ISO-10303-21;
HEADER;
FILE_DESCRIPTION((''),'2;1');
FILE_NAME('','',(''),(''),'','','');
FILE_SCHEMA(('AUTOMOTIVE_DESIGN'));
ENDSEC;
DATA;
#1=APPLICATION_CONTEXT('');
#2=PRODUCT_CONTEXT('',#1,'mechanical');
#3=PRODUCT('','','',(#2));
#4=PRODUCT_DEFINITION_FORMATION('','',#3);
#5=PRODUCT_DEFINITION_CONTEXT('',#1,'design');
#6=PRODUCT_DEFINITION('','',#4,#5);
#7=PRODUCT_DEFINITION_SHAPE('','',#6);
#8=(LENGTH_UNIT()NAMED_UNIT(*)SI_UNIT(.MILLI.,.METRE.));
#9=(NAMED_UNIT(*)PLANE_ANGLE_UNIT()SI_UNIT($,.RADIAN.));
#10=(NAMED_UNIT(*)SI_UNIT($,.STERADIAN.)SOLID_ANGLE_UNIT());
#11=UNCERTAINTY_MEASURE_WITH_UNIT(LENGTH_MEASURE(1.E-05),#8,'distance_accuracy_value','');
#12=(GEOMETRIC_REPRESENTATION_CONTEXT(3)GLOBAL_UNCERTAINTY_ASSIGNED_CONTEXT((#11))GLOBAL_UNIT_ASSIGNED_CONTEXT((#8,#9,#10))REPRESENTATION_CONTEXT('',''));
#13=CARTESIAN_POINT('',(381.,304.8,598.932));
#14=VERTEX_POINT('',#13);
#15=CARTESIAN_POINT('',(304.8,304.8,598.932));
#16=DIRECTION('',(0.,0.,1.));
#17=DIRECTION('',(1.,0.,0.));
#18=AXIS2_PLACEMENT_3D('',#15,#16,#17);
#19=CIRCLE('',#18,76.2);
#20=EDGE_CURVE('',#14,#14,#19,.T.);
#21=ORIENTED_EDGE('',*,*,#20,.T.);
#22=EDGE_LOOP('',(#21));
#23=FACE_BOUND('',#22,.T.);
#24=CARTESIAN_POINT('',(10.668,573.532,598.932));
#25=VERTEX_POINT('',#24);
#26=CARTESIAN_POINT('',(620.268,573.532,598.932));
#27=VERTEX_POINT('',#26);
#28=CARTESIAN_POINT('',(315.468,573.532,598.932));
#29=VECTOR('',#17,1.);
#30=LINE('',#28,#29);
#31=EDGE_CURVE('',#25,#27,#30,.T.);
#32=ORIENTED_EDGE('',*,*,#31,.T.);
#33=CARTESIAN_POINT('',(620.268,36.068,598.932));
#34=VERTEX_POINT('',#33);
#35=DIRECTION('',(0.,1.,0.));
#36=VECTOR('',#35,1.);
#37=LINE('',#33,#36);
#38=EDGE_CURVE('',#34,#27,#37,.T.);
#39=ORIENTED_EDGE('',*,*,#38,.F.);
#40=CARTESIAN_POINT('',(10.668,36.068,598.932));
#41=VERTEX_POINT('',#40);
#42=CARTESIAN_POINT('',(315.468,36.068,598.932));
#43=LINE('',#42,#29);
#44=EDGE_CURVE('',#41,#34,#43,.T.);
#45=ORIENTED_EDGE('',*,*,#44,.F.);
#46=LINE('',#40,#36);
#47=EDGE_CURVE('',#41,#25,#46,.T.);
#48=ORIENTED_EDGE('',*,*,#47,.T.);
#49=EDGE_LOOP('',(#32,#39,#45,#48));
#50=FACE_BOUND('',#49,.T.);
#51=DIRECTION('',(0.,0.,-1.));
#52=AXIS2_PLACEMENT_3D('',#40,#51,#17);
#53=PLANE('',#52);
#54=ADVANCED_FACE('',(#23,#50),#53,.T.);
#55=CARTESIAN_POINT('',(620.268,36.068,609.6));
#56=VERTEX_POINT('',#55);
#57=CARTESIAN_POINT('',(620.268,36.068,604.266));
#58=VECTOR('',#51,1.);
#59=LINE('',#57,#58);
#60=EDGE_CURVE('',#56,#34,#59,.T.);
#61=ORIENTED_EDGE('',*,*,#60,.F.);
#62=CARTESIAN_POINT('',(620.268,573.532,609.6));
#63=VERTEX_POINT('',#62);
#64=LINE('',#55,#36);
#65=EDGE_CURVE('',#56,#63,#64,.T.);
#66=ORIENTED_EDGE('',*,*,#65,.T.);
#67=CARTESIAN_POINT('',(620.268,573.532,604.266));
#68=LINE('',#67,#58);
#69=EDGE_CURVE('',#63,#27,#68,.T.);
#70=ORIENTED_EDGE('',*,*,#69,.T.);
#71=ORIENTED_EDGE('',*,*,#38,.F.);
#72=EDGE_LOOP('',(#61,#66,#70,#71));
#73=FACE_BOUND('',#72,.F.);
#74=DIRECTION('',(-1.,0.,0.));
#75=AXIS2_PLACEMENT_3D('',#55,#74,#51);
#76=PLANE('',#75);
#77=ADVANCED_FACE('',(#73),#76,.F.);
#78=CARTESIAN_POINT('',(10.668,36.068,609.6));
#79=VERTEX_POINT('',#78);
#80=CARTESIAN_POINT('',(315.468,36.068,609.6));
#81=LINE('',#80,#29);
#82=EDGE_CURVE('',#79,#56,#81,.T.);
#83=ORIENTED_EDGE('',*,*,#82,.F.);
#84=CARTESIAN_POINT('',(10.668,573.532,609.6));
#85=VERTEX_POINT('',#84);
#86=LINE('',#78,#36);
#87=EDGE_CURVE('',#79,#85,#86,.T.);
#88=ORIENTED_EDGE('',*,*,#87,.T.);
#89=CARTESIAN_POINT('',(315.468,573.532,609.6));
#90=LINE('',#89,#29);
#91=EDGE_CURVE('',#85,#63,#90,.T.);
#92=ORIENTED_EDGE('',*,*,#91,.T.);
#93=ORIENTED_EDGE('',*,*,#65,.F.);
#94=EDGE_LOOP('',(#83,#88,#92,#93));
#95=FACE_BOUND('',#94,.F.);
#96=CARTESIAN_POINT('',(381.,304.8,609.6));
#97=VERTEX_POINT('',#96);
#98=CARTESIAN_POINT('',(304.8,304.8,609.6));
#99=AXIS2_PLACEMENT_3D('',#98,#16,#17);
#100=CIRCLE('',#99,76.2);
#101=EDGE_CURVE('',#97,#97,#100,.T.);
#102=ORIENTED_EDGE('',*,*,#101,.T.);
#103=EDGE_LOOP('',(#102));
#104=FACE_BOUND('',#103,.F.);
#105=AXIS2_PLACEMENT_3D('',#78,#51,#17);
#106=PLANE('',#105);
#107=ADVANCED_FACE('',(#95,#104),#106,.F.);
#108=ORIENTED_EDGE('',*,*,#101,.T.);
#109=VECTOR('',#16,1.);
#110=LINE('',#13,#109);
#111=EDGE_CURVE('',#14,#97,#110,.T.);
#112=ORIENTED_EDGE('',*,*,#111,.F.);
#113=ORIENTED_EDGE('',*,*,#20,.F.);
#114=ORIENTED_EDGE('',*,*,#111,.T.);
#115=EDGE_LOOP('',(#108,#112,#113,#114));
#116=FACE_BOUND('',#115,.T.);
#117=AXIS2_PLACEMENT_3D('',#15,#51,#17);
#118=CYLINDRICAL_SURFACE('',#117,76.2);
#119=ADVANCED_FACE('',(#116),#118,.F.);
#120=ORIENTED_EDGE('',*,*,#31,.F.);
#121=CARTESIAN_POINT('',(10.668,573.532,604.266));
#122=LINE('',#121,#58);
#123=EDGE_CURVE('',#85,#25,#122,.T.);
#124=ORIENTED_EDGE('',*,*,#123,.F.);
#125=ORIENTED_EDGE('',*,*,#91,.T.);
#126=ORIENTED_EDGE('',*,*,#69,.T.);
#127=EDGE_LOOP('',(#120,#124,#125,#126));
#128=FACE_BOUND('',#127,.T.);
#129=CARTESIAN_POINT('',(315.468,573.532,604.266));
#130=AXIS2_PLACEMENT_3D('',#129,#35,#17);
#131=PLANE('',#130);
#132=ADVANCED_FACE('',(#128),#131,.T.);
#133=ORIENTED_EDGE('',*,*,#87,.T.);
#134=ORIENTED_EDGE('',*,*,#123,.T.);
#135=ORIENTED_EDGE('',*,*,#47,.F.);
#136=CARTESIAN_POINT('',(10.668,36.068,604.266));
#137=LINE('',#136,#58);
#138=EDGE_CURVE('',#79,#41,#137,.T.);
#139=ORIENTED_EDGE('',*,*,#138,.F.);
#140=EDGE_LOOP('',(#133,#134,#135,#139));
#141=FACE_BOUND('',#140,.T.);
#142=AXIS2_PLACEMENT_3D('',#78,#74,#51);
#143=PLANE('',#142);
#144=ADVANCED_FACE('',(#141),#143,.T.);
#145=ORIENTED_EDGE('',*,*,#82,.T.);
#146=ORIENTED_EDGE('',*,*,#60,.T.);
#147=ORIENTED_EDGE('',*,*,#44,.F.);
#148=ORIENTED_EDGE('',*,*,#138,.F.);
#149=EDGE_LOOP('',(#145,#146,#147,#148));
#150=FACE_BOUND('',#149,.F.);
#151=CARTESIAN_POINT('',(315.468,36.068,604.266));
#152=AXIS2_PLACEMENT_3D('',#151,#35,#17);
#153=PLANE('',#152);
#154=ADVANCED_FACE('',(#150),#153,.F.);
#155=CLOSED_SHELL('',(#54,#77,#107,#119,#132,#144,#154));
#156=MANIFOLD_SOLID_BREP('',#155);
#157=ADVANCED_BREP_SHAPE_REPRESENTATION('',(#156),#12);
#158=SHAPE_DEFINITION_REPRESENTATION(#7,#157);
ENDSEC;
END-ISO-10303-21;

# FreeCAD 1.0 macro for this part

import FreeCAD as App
import Part
import Sketcher
from FreeCAD import Vector
Q = App.Units.Quantity


def add_polygon(sketch, points):
    """Adds a closed chain of lines whose ends are joined by coincident constraints."""
    first, n = sketch.GeometryCount, len(points)
    for a, b in zip(points, points[1:] + points[:1]):
        sketch.addGeometry(Part.LineSegment(App.Vector(*a, 0), App.Vector(*b, 0)), False)
    for i in range(n):
        sketch.addConstraint(Sketcher.Constraint("Coincident", first + i, 2, first + (i + 1) % n, 1))

doc = App.newDocument("Part")
body = doc.addObject("PartDesign::Body", "Body")

sketch1 = doc.addObject("Sketcher::SketchObject", "Sketch")
body.addObject(sketch1)
sketch1.AttachmentSupport = (doc.XY_Plane, [""])
sketch1.MapMode = "FlatFace"
sketch1.AttachmentOffset = App.Placement(Vector(0, 0, 23.58 * 25.4), App.Rotation())
sketch1.addGeometry(Part.Circle(Vector(304.8, 304.8, 0), Vector(0, 0, 1), 76.2), False)
sketch1.addConstraint(Sketcher.Constraint("Diameter", 0, Q("6 in")))
sketch1.addConstraint(Sketcher.Constraint("DistanceX", -1, 1, 0, 3, Q("12 in")))
sketch1.addConstraint(Sketcher.Constraint("DistanceY", -1, 1, 0, 3, Q("12 in")))
pad1 = doc.addObject("PartDesign::Pad", "Pad")
body.addObject(pad1)
pad1.Profile = sketch1
pad1.Length = Q("0.42 in")
body2 = doc.addObject("PartDesign::Body", "Body001")

sketch2 = doc.addObject("Sketcher::SketchObject", "Sketch001")
body2.addObject(sketch2)
sketch2.AttachmentSupport = (doc.getObject("XY_Plane001"), [""])
sketch2.MapMode = "FlatFace"
add_polygon(sketch2, [(0, 10.668), (0, 0), (609.6, 0), (609.6, 10.668)])
sketch2.addConstraint(Sketcher.Constraint("Vertical", 0))
sketch2.addConstraint(Sketcher.Constraint("Horizontal", 1))
sketch2.addConstraint(Sketcher.Constraint("Vertical", 2))
sketch2.addConstraint(Sketcher.Constraint("Horizontal", 3))
sketch2.addConstraint(Sketcher.Constraint("Coincident", 0, 2, -1, 1))
sketch2.addConstraint(Sketcher.Constraint("DistanceX", 1, 1, 1, 2, Q("24 in")))
sketch2.addConstraint(Sketcher.Constraint("DistanceY", 0, 2, 0, 1, Q("0.42 in")))
pad2 = doc.addObject("PartDesign::Pad", "Pad001")
body2.addObject(pad2)
pad2.Profile = sketch2
pad2.Length = Q("21.16 in")
body3 = doc.addObject("PartDesign::Body", "Body002")
doc.recompute()

body2.Placement = App.Placement(Vector(0, 0, 0), App.Rotation(Vector(1, 0, 0), 270))
boolean = doc.addObject("PartDesign::Boolean", "Boolean")
body3.addObject(boolean)
boolean.Type = "Fuse"
boolean.addObjects([body2])
body4 = doc.addObject("PartDesign::Body", "Body003")
doc.recompute()

body3.Placement = App.Placement(Vector(10.668, 36.068, 609.6), App.Rotation(Vector(0, 0, 1), 0))
boolean2 = doc.addObject("PartDesign::Boolean", "Boolean001")
body4.addObject(boolean2)
boolean2.Type = "Fuse"
boolean2.addObjects([body3])
doc.recompute()

boolean3 = doc.addObject("PartDesign::Boolean", "Boolean002")
body4.addObject(boolean3)
boolean3.Type = "Cut"
boolean3.addObjects([body])

doc.recompute()
